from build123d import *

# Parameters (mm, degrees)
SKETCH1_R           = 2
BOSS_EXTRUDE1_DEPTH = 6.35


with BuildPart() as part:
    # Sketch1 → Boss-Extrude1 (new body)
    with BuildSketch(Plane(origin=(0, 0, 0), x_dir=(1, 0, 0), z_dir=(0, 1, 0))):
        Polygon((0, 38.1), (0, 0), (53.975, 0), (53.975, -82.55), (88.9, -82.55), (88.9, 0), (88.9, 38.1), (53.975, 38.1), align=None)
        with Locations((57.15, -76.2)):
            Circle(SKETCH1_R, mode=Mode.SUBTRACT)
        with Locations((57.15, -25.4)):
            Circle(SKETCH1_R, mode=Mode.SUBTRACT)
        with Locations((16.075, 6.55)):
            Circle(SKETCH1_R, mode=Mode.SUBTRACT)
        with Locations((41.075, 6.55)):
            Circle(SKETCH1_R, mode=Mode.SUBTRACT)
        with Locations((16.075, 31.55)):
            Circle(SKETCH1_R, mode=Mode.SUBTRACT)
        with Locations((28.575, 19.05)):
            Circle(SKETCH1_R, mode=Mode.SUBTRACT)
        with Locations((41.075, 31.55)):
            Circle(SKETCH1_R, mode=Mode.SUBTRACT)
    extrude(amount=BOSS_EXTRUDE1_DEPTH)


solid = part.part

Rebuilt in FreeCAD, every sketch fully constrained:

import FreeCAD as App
import Part
import Sketcher
Q = App.Units.Quantity


def add_polygon(sketch, points):
    """Adds a closed chain of lines whose ends are joined by coincident constraints."""
    first, n = sketch.GeometryCount, len(points)
    for a, b in zip(points, points[1:] + points[:1]):
        sketch.addGeometry(Part.LineSegment(App.Vector(*a, 0), App.Vector(*b, 0)), False)
    for i in range(n):
        sketch.addConstraint(Sketcher.Constraint("Coincident", first + i, 2, first + (i + 1) % n, 1))

doc = App.newDocument("Part")
params = doc.addObject("Spreadsheet::Sheet", "Params")
for row, (alias, value) in enumerate([
    ("sketch1_width", "3.5 in"),
    ("sketch1_height", "1.5 in"),
    ("sketch1_height2", "3.25 in"),
    ("sketch1_width2", "2.125 in"),
    ("pad1_length", "0.25 in"),
], start=1):
    params.set(f"A{row}", alias)
    params.set(f"B{row}", "=" + value)
    params.setAlias(f"B{row}", alias)

body = doc.addObject("PartDesign::Body", "Body")

sketch1 = doc.addObject("Sketcher::SketchObject", "Sketch")
body.addObject(sketch1)
sketch1.AttachmentSupport = (doc.XZ_Plane, [""])
sketch1.MapMode = "FlatFace"
add_polygon(sketch1, [(0, -38.1), (0, 0), (54, 0), (54, 82.5), (88.9, 82.5), (88.9, -38.1)])
sketch1.addGeometry(Part.Circle(App.Vector(57.1, 76.2, 0), App.Vector(0, 0, 1), 2), False)
sketch1.addGeometry(Part.Circle(App.Vector(57.1, 25.4, 0), App.Vector(0, 0, 1), 2), False)
sketch1.addGeometry(Part.Circle(App.Vector(16.1, -6.5, 0), App.Vector(0, 0, 1), 2), False)
sketch1.addGeometry(Part.Circle(App.Vector(16.1, -31.6, 0), App.Vector(0, 0, 1), 2), False)
sketch1.addGeometry(Part.Circle(App.Vector(28.6, -19.1, 0), App.Vector(0, 0, 1), 2), False)
sketch1.addGeometry(Part.Circle(App.Vector(41.1, -6.5, 0), App.Vector(0, 0, 1), 2), False)
sketch1.addGeometry(Part.Circle(App.Vector(41.1, -31.6, 0), App.Vector(0, 0, 1), 2), False)
sketch1.addConstraint([
    Sketcher.Constraint("Vertical", 0),
    Sketcher.Constraint("Horizontal", 1),
    Sketcher.Constraint("Vertical", 2),
    Sketcher.Constraint("Horizontal", 3),
    Sketcher.Constraint("Vertical", 4),
    Sketcher.Constraint("Horizontal", 5),
    Sketcher.Constraint("Coincident", 0, 2, -1, 1),
    Sketcher.Constraint("Equal", 6, 7),
    Sketcher.Constraint("Equal", 7, 8),
    Sketcher.Constraint("Equal", 8, 9),
    Sketcher.Constraint("Equal", 9, 10),
    Sketcher.Constraint("Equal", 10, 11),
    Sketcher.Constraint("Equal", 11, 12),
    Sketcher.Constraint("Horizontal", 8, 3, 11, 3),
    Sketcher.Constraint("Horizontal", 9, 3, 12, 3),
    Sketcher.Constraint("Vertical", 6, 3, 7, 3),
    Sketcher.Constraint("Vertical", 8, 3, 9, 3),
    Sketcher.Constraint("Vertical", 11, 3, 12, 3),
    Sketcher.Constraint("DistanceX", 5, 2, 5, 1, Q("3.5 in")),
    Sketcher.Constraint("DistanceY", 0, 1, 0, 2, Q("1.5 in")),
    Sketcher.Constraint("DistanceY", -1, 1, 6, 3, Q("3 in")),
    Sketcher.Constraint("DistanceY", -1, 1, 7, 3, Q("1 in")),
    Sketcher.Constraint("DistanceX", 10, 3, 1, 2, Q("1 in")),
    Sketcher.Constraint("DistanceY", 2, 1, 2, 2, Q("3.25 in")),
    Sketcher.Constraint("Diameter", 6, 4.0),
    Sketcher.Constraint("DistanceX", 1, 1, 1, 2, Q("2.125 in")),
    Sketcher.Constraint("DistanceX", -1, 1, 6, 3, Q("2.25 in")),
    Sketcher.Constraint("DistanceY", 10, 3, -1, 1, Q("0.75 in")),
    Sketcher.Constraint("DistanceX", -1, 1, 8, 3, 16.075),
    Sketcher.Constraint("DistanceY", 8, 3, -1, 1, 6.55),
    Sketcher.Constraint("DistanceY", 9, 3, -1, 1, 31.55),
    Sketcher.Constraint("DistanceX", -1, 1, 11, 3, 41.075),
])
sketch1.setExpression("Constraints[24]", "Params.sketch1_width")
sketch1.setExpression("Constraints[25]", "Params.sketch1_height")
sketch1.setExpression("Constraints[29]", "Params.sketch1_height2")
sketch1.setExpression("Constraints[31]", "Params.sketch1_width2")
pad1 = doc.addObject("PartDesign::Pad", "Pad")
body.addObject(pad1)
pad1.Profile = sketch1
pad1.setExpression("Length", "Params.pad1_length")
pad1.Reversed = True

doc.recompute()
